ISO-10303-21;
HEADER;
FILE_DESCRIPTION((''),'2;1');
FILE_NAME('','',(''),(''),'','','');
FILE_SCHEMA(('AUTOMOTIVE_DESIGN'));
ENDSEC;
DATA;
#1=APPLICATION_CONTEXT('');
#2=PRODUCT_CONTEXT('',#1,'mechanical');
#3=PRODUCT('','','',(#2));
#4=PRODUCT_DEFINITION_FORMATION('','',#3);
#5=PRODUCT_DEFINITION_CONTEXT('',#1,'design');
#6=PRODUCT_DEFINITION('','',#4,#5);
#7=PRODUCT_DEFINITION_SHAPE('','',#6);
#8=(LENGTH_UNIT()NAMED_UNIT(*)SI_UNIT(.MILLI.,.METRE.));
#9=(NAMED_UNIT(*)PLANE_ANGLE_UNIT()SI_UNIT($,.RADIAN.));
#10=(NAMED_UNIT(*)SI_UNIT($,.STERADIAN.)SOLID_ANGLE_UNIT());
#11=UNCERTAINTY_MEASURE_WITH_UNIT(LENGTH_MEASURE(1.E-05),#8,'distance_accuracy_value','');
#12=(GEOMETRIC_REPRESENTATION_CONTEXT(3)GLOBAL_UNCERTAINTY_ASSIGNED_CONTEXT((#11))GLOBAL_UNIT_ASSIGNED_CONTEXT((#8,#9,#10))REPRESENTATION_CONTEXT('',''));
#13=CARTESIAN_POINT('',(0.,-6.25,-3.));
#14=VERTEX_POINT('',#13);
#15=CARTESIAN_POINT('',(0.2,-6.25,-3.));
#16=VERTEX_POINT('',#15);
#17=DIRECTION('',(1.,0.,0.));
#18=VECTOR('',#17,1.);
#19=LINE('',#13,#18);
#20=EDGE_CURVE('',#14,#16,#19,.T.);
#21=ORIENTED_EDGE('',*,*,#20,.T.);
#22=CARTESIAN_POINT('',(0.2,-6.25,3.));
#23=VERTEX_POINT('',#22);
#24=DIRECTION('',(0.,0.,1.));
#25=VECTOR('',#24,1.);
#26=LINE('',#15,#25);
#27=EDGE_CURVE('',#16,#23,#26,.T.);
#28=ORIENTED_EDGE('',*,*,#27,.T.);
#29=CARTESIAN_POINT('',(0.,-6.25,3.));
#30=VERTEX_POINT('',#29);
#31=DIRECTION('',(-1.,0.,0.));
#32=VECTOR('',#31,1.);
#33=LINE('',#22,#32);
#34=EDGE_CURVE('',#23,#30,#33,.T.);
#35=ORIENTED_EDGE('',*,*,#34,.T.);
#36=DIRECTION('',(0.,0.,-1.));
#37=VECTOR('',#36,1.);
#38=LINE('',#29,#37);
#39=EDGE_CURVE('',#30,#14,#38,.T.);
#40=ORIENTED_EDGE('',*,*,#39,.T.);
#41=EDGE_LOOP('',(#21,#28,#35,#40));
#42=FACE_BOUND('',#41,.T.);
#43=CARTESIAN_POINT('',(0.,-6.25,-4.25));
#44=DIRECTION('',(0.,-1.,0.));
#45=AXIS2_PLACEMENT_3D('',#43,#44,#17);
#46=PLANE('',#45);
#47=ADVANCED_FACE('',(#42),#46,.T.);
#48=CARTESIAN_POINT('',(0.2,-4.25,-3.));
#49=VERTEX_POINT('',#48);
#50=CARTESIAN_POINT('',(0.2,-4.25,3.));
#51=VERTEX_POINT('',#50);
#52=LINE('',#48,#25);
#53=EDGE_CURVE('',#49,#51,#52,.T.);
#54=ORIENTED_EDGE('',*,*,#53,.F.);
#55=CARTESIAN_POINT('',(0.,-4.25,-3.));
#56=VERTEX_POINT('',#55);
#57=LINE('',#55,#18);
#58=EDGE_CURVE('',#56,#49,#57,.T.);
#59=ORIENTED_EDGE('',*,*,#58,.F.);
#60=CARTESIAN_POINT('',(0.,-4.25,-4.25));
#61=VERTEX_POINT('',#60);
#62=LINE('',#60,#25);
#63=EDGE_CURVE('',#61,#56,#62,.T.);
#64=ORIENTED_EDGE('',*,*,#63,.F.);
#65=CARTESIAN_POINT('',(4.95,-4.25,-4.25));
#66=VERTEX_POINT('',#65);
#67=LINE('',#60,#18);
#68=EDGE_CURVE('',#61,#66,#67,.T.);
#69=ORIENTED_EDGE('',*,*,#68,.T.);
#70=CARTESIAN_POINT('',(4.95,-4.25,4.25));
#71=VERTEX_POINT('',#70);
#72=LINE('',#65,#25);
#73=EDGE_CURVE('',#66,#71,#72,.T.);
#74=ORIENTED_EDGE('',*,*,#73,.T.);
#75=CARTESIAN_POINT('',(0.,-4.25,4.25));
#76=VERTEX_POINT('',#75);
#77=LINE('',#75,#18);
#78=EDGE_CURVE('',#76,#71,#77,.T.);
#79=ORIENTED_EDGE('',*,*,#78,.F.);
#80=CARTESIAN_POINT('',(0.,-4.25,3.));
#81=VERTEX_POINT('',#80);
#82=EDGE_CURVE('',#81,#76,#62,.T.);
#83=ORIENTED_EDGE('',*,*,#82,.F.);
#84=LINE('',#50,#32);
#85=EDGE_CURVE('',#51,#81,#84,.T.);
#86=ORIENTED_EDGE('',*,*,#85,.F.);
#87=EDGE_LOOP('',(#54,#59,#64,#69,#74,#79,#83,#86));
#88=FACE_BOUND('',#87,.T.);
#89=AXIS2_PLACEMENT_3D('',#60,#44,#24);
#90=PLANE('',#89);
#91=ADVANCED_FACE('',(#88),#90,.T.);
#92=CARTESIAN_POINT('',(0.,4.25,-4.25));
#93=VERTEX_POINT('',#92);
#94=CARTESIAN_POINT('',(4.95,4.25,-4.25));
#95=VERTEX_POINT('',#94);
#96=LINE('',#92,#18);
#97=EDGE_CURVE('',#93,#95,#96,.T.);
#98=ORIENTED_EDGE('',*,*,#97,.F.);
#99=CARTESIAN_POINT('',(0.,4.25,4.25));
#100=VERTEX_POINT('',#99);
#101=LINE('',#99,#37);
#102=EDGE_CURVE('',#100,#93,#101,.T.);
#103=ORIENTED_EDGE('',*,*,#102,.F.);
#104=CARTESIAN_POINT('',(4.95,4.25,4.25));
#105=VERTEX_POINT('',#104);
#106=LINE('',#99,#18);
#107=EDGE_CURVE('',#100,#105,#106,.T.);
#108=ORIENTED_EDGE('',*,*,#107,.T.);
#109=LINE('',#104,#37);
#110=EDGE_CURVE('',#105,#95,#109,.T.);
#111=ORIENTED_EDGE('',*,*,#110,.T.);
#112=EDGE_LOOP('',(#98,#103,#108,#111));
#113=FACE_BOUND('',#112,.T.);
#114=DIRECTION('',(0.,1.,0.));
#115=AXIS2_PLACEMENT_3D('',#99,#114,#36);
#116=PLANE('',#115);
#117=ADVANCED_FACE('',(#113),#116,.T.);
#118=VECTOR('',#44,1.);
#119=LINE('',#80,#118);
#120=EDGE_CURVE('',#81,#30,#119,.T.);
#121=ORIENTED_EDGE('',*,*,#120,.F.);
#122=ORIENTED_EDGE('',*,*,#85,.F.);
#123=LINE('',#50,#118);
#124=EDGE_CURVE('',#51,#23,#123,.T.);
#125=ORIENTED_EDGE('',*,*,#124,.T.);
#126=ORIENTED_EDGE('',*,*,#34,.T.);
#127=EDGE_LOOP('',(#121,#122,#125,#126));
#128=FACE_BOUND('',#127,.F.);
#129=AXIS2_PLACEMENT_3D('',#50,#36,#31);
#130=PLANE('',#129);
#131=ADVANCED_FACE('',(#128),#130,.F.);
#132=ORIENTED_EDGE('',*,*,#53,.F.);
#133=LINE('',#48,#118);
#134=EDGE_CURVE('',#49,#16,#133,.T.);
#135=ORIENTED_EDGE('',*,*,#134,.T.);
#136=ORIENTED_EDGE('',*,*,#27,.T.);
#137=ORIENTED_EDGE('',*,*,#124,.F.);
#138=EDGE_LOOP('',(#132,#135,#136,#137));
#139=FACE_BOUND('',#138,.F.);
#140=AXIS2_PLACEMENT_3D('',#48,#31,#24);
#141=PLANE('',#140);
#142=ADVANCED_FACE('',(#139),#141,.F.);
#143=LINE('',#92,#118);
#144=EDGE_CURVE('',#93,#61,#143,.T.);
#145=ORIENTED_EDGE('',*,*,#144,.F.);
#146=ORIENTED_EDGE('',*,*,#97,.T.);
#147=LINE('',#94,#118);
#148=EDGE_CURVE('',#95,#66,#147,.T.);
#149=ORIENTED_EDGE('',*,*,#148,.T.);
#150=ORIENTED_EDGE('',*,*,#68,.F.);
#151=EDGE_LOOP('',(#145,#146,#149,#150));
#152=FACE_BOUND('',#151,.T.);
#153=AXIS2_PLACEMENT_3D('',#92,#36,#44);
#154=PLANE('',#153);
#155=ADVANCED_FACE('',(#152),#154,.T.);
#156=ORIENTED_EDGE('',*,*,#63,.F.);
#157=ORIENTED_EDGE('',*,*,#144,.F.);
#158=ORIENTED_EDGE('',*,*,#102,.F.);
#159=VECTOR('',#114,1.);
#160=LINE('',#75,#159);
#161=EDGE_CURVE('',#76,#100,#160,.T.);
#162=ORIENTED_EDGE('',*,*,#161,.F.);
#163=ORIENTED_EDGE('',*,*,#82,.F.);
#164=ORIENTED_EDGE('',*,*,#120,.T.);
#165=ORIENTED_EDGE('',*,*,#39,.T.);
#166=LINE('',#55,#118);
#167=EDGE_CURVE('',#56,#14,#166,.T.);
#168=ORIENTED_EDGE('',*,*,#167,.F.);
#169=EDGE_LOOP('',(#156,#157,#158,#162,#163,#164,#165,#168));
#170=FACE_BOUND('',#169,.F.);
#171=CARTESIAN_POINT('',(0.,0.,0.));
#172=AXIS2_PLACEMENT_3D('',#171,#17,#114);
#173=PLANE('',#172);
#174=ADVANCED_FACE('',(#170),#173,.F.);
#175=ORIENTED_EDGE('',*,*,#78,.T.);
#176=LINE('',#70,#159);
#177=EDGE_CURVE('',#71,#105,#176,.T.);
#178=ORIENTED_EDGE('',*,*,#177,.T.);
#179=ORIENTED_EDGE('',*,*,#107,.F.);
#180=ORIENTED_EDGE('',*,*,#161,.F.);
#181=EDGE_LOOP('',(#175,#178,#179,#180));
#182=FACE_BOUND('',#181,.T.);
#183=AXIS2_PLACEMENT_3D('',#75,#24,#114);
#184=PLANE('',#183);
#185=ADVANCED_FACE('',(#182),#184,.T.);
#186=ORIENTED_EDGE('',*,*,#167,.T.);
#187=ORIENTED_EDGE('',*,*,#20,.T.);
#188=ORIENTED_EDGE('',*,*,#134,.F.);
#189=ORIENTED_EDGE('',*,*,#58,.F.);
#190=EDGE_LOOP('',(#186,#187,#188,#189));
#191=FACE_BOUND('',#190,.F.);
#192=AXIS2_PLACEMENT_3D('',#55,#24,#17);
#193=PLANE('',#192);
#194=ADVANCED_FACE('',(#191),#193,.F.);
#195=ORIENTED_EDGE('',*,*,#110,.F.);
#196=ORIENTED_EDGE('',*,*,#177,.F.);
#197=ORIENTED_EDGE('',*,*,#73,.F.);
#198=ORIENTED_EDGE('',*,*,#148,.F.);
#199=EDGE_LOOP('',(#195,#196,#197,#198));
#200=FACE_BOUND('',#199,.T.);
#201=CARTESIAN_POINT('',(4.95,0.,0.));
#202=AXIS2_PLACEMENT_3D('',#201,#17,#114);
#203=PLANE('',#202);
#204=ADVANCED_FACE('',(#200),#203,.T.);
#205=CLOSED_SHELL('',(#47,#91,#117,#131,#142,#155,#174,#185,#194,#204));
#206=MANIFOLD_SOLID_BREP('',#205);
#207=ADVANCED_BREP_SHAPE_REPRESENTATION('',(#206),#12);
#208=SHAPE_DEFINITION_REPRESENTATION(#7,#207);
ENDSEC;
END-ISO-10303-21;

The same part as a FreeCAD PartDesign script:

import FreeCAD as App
import Part
import Sketcher


def add_polygon(sketch, points):
    """Adds a closed chain of lines whose ends are joined by coincident constraints."""
    first, n = sketch.GeometryCount, len(points)
    for a, b in zip(points, points[1:] + points[:1]):
        sketch.addGeometry(Part.LineSegment(App.Vector(*a, 0), App.Vector(*b, 0)), False)
    for i in range(n):
        sketch.addConstraint(Sketcher.Constraint("Coincident", first + i, 2, first + (i + 1) % n, 1))

doc = App.newDocument("Part")
body = doc.addObject("PartDesign::Body", "Body")

sketch1 = doc.addObject("Sketcher::SketchObject", "Sketch")
body.addObject(sketch1)
sketch1.AttachmentSupport = (doc.YZ_Plane, [""])
sketch1.MapMode = "FlatFace"
add_polygon(sketch1, [(4, 4), (-4, 4), (-4, -4), (4, -4)])
sketch1.addConstraint([
    Sketcher.Constraint("Horizontal", 0),
    Sketcher.Constraint("Vertical", 1),
    Sketcher.Constraint("Horizontal", 2),
    Sketcher.Constraint("Vertical", 3),
    Sketcher.Constraint("Symmetric", 0, 2, 2, 2, -1, 1),
    Sketcher.Constraint("Equal", 2, 1),
    Sketcher.Constraint("DistanceX", 0, 2, 0, 1, 8.5),
])
pad1 = doc.addObject("PartDesign::Pad", "Pad")
body.addObject(pad1)
pad1.Profile = sketch1
pad1.Length = 4.95

sketch2 = doc.addObject("Sketcher::SketchObject", "Sketch001")
body.addObject(sketch2)
sketch2.AttachmentSupport = (doc.XZ_Plane, [""])
sketch2.MapMode = "FlatFace"
sketch2.AttachmentOffset = App.Placement(App.Vector(0, 0, 4.25), App.Rotation())
add_polygon(sketch2, [(0.2, -3), (0.2, 3), (0, 3), (0, -3)])
sketch2.addConstraint([
    Sketcher.Constraint("Vertical", 0),
    Sketcher.Constraint("Horizontal", 1),
    Sketcher.Constraint("Vertical", 2),
    Sketcher.Constraint("Horizontal", 3),
    Sketcher.Constraint("Symmetric", 1, 2, 2, 2, -1, 1),
    Sketcher.Constraint("DistanceY", 0, 1, 0, 2, 6.0),
    Sketcher.Constraint("DistanceX", 1, 2, 1, 1, 0.2),
])
pad2 = doc.addObject("PartDesign::Pad", "Pad001")
body.addObject(pad2)
pad2.Profile = sketch2
pad2.Length = 2

doc.recompute()
